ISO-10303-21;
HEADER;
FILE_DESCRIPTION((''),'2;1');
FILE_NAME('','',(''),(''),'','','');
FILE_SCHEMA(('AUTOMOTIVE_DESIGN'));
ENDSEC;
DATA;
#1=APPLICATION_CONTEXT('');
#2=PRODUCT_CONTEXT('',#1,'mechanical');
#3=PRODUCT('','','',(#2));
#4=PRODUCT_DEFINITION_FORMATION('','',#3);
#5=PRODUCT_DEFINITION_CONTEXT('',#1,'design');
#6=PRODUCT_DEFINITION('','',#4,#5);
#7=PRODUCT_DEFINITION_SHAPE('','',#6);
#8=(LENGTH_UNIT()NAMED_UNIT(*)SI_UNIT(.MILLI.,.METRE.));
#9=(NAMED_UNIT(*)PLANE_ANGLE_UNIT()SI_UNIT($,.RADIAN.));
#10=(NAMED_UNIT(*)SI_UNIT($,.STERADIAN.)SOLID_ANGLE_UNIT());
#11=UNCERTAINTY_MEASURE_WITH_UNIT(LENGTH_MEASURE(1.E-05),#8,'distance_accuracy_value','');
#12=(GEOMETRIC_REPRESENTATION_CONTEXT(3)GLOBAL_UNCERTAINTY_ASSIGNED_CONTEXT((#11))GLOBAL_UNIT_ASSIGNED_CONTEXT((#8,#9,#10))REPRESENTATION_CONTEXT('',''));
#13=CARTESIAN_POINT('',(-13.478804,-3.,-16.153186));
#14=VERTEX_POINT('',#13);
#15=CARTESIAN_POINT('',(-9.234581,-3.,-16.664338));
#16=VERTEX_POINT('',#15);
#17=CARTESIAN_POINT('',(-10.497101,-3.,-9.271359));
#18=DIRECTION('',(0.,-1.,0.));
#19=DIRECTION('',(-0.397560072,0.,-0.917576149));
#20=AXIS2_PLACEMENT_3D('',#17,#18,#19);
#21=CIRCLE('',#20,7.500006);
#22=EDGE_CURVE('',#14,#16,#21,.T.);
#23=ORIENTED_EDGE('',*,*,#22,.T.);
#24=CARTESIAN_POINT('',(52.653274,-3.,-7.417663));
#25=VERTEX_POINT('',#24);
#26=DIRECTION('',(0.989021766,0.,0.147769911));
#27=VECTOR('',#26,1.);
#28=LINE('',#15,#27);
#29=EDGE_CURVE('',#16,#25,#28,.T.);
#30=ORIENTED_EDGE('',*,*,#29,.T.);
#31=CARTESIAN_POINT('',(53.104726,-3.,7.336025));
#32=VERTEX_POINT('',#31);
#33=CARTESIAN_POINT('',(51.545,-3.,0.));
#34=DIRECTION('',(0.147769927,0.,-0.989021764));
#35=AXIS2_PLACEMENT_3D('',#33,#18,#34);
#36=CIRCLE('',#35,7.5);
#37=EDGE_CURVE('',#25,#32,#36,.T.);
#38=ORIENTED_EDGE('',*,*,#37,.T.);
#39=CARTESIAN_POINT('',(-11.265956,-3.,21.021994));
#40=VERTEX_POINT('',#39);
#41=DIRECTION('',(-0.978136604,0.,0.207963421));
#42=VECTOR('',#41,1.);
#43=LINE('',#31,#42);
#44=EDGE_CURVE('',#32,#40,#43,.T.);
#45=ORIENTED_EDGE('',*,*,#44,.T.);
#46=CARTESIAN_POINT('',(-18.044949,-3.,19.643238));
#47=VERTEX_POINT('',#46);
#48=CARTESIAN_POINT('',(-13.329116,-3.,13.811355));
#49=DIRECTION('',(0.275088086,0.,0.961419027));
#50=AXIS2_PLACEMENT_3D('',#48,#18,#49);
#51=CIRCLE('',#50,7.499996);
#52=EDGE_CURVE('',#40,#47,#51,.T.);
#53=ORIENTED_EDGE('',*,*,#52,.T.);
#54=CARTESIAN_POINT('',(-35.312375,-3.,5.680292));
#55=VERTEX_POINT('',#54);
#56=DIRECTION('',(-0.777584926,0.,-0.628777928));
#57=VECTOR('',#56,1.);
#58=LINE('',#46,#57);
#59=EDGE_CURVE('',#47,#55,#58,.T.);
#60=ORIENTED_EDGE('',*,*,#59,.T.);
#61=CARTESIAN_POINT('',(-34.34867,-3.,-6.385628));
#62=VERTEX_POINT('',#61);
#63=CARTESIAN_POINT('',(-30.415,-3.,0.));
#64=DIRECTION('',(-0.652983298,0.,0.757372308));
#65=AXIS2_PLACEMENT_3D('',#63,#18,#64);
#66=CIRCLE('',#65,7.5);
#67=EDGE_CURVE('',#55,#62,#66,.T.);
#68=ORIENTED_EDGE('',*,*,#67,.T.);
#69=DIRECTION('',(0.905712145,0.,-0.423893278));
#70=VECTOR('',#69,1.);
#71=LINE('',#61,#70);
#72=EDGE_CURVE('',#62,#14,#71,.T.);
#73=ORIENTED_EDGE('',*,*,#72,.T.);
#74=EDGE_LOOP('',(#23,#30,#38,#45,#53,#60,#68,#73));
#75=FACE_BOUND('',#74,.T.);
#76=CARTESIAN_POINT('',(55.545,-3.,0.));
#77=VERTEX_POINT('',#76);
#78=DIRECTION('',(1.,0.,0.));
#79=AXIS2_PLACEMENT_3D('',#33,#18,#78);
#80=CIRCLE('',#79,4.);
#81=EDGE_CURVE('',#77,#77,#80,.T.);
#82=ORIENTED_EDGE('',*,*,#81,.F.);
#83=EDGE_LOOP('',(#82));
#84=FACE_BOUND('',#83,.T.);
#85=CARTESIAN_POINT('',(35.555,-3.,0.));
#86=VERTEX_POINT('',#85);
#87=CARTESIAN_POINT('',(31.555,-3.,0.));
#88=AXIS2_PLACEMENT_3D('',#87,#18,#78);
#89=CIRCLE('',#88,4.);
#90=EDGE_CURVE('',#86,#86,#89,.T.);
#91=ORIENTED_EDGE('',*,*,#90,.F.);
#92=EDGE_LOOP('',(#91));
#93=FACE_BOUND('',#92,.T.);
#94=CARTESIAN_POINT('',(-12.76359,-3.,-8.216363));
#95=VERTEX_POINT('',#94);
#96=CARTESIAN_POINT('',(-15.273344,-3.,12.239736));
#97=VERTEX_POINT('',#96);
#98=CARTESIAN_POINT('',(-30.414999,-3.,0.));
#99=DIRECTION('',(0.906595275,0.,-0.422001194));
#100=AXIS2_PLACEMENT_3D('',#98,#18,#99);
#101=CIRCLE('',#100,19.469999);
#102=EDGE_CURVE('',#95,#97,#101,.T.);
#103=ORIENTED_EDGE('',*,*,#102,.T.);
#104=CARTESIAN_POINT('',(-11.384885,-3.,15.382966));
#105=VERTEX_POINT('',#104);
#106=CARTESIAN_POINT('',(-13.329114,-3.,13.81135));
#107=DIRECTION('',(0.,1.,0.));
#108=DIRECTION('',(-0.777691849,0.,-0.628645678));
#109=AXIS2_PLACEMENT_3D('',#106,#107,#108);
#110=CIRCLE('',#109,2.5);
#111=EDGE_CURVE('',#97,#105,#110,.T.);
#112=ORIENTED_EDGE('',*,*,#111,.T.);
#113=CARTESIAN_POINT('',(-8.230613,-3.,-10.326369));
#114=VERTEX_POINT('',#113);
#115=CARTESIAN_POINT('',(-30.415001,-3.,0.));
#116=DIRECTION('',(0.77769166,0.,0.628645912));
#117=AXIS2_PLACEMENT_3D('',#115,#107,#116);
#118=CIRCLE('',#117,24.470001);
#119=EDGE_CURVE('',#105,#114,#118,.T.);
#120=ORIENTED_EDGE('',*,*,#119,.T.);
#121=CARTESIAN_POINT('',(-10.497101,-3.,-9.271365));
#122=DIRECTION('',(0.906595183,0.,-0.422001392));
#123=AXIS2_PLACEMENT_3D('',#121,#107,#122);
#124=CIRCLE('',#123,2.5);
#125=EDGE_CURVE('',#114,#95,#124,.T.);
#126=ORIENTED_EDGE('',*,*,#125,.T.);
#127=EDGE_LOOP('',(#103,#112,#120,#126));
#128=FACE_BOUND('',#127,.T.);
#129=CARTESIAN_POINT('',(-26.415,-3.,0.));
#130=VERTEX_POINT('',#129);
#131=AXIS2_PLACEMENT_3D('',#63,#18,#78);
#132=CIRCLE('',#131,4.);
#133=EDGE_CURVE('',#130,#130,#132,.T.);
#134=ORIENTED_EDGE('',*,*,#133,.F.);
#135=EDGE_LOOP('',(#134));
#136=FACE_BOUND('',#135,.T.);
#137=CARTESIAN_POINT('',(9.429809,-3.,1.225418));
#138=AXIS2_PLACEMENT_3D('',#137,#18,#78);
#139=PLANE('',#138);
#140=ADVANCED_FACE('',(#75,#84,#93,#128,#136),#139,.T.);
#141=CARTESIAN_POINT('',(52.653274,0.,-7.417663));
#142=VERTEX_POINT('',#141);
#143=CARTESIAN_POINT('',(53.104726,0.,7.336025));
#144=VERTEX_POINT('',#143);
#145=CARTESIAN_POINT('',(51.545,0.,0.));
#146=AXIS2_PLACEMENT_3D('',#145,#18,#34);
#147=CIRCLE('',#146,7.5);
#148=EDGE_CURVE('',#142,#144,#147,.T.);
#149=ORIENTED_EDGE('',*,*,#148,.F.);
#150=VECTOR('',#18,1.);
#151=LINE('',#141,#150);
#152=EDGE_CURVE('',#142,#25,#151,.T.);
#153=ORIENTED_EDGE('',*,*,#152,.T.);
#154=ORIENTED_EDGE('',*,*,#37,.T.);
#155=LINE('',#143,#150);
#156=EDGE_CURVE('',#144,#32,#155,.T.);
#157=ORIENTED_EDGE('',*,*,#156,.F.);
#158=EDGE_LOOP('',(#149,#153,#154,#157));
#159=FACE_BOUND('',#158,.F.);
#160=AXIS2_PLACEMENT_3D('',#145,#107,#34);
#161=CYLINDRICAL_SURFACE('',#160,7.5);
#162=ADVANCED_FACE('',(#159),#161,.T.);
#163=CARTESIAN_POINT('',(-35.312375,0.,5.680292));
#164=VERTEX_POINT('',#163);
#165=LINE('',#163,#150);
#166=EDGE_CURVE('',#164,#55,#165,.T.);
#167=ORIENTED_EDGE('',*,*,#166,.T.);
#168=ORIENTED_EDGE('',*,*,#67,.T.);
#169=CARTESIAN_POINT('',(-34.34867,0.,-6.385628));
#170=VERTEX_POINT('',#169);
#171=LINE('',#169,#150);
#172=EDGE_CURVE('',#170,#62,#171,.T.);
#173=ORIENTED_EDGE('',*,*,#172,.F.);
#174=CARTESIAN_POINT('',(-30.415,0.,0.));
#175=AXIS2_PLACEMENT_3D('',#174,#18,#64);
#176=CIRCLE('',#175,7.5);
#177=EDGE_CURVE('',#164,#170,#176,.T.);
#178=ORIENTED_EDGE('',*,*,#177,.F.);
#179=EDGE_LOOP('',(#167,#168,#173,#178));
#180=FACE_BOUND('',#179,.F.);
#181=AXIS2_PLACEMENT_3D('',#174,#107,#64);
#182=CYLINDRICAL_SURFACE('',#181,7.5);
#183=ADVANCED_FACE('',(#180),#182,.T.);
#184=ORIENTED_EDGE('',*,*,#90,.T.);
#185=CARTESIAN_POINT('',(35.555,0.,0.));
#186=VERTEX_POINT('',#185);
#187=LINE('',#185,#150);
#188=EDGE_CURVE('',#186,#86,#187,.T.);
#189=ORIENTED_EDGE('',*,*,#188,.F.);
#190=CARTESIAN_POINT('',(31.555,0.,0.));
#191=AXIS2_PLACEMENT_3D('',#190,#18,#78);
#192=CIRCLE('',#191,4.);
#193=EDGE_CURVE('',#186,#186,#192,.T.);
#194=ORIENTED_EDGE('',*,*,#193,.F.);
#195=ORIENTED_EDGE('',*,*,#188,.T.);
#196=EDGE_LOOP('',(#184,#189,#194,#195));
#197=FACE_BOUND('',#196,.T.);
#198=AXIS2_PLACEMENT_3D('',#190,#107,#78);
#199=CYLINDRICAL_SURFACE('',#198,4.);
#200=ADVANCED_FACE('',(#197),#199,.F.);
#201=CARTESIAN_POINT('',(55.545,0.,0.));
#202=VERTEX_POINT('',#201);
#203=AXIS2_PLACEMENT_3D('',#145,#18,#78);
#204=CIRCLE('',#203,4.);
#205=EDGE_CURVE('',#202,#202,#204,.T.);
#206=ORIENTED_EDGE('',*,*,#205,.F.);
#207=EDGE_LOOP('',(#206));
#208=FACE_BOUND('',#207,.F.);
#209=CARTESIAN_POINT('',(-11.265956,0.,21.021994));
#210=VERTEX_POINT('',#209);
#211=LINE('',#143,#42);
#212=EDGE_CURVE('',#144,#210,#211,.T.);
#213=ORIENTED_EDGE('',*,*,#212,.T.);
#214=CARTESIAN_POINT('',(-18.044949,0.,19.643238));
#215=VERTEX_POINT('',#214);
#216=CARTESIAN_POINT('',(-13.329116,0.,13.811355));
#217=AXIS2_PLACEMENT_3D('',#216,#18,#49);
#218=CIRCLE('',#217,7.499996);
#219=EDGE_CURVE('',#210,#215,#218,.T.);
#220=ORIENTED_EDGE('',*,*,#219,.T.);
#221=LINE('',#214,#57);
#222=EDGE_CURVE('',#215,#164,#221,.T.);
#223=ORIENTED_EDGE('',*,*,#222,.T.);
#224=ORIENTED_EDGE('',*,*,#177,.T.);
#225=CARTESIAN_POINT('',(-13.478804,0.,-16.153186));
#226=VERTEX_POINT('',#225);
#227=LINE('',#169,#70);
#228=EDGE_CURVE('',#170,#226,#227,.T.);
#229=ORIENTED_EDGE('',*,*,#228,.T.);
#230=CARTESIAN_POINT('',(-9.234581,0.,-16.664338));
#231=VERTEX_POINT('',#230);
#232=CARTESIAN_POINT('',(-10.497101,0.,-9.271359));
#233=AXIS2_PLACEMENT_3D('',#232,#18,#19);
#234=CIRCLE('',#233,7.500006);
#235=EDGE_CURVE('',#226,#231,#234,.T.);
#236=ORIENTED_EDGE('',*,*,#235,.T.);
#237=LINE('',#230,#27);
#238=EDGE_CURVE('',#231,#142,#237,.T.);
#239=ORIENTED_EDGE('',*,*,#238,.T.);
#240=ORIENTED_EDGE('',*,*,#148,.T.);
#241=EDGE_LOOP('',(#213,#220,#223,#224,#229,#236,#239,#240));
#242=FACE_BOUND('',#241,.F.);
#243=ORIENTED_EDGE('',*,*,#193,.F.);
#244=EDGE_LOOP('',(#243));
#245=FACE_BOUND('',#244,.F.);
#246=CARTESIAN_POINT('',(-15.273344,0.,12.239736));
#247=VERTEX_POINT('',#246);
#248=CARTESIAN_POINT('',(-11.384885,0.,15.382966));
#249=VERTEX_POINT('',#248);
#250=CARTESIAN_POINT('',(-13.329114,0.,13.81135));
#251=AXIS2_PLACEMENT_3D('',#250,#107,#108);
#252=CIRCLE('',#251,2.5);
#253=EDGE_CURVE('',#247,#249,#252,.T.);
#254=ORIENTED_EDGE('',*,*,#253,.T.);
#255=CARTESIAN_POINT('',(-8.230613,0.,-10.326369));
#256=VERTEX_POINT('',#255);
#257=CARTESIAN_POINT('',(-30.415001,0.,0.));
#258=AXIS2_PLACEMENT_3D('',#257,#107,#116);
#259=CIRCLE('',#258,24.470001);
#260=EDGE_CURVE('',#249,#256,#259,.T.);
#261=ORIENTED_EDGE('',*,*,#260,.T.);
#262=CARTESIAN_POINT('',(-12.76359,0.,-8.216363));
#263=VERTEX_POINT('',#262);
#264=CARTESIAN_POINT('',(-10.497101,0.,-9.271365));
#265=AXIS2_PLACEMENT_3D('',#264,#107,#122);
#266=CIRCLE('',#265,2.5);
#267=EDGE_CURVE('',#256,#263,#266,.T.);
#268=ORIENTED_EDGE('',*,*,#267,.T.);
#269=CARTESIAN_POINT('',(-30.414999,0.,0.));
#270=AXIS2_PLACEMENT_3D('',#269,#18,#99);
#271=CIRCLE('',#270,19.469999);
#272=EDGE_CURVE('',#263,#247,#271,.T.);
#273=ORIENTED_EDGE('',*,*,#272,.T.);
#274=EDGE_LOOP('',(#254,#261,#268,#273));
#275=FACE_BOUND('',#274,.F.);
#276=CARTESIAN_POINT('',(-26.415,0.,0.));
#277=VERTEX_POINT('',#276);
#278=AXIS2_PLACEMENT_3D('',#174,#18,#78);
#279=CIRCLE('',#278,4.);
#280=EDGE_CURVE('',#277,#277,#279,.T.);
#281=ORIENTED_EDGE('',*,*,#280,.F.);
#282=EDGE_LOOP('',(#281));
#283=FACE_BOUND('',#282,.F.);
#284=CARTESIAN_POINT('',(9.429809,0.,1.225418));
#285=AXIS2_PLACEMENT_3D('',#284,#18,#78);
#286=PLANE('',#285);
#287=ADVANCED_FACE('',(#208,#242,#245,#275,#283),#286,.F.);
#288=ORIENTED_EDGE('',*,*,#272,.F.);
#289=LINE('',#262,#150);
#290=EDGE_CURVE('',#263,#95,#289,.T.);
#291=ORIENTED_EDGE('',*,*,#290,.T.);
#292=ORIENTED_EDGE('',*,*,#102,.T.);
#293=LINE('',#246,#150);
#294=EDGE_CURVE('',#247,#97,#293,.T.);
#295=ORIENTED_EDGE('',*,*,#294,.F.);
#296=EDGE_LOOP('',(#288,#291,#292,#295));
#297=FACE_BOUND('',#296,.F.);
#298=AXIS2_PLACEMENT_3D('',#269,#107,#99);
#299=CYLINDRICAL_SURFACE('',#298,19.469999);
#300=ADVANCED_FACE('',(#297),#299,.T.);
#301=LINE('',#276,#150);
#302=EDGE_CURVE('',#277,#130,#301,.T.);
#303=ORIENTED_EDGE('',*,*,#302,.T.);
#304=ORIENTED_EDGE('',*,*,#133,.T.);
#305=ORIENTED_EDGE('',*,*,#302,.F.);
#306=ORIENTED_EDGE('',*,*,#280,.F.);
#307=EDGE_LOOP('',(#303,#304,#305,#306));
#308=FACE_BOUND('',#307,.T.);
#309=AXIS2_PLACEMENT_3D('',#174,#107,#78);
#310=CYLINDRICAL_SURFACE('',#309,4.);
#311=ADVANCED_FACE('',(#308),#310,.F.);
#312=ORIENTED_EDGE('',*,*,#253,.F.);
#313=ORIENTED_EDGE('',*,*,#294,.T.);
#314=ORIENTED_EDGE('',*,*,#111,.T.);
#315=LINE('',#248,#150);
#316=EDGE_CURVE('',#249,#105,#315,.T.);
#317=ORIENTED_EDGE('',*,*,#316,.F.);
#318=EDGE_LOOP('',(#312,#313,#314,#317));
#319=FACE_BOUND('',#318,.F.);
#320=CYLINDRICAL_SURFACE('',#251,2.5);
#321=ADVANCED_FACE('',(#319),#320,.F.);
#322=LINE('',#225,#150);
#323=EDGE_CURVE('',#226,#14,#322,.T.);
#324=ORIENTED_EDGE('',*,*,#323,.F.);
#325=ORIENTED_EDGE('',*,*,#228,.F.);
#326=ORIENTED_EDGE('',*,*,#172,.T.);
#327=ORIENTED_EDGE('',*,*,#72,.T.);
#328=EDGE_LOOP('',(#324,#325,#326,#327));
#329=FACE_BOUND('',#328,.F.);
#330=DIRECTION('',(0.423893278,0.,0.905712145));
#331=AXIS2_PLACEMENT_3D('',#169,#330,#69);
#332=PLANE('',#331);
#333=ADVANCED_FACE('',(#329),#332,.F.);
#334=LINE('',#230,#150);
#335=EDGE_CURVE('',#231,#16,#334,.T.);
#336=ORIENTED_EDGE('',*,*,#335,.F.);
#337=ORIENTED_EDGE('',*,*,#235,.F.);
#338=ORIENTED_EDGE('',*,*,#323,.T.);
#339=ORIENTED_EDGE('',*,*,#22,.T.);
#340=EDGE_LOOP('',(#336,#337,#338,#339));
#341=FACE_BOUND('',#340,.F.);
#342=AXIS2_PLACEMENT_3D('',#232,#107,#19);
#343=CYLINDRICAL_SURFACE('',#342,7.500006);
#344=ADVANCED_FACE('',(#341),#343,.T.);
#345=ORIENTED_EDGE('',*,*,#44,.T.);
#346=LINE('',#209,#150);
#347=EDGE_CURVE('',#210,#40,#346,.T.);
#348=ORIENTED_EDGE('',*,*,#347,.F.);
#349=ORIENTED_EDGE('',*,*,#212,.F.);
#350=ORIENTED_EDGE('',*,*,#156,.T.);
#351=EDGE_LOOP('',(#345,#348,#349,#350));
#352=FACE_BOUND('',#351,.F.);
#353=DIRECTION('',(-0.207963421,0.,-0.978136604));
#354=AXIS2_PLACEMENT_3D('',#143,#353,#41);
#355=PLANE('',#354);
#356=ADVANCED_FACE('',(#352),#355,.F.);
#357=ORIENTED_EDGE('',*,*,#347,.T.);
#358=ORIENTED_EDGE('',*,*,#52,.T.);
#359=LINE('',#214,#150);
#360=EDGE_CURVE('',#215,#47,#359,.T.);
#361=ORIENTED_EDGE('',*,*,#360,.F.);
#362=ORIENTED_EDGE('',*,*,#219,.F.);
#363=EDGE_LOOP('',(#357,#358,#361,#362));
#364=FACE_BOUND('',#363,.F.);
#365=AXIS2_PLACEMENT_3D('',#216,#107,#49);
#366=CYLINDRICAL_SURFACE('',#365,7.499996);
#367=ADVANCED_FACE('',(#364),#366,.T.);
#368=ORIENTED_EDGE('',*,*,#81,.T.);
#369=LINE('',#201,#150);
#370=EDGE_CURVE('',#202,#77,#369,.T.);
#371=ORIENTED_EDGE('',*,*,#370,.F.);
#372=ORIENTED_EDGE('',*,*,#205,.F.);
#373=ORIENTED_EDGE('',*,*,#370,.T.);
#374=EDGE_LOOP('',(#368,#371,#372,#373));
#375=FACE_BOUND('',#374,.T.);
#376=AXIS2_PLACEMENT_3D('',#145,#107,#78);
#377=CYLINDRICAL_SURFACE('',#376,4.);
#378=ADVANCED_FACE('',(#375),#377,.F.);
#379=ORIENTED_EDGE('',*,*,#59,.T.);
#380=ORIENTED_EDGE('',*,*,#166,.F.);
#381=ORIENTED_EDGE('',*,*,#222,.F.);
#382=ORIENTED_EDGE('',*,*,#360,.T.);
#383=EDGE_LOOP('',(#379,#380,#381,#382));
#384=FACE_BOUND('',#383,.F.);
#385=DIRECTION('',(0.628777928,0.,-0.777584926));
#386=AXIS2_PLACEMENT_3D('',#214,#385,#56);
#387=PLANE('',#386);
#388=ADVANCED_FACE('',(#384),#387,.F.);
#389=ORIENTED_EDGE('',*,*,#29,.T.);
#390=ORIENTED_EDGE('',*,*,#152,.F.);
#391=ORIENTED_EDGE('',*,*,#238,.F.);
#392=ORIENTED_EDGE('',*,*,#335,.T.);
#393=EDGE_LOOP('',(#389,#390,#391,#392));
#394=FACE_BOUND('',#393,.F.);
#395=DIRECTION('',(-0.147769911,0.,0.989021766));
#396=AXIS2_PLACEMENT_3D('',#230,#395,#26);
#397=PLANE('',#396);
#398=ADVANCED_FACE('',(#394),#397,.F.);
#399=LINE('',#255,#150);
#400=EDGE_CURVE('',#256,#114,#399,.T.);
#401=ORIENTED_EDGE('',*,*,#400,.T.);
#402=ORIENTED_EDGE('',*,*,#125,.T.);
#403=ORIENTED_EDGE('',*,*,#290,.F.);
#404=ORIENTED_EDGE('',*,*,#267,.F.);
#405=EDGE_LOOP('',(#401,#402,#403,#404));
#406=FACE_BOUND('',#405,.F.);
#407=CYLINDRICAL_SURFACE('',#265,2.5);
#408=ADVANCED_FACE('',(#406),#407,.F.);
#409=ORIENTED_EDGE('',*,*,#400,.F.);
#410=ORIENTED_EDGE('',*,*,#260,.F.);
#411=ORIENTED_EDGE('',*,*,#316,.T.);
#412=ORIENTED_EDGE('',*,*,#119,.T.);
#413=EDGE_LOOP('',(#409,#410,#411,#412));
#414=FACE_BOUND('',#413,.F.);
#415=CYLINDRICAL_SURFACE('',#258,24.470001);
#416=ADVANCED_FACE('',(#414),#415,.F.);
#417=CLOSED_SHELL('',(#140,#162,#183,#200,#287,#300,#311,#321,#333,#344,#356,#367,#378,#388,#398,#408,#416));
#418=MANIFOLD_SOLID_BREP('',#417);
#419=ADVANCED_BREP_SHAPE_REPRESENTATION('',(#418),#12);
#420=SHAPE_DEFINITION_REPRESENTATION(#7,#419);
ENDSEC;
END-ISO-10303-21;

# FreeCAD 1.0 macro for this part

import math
import FreeCAD as App
import Part
import Sketcher
Q = App.Units.Quantity

doc = App.newDocument("Part")
body = doc.addObject("PartDesign::Body", "Body")

# Sketch on XZ plane
sketch1 = body.newObject("Sketcher::SketchObject", "Sketch")
sketch1.AttachmentSupport = (doc.getObject("XZ_Plane"), [""])
sketch1.MapMode = "FlatFace"
sketch1.addGeometry([
    Part.LineSegment(App.Vector(53.104726, 7.336025, 0), App.Vector(-11.265956, 21.021994, 0)),  # 0
    Part.ArcOfCircle(Part.Circle(App.Vector(-13.329116, 13.811355, 0), App.Vector(0, 0, 1), 7.499996), math.radians(74.032736), math.radians(128.960029)),  # 1
    Part.LineSegment(App.Vector(-18.044949, 19.643238, 0), App.Vector(-35.312375, 5.680292, 0)),  # 2
    Part.ArcOfCircle(Part.Circle(App.Vector(-30.415, 0, 0), App.Vector(0, 0, 1), 7.5), math.radians(130.766909), math.radians(238.366131)),  # 3
    Part.LineSegment(App.Vector(-34.34867, -6.385628, 0), App.Vector(-13.478804, -16.153186, 0)),  # 4
    Part.ArcOfCircle(Part.Circle(App.Vector(-10.497101, -9.271359, 0), App.Vector(0, 0, 1), 7.500006), math.radians(-113.425735), math.radians(-80.308922)),  # 5
    Part.LineSegment(App.Vector(-9.234581, -16.664338, 0), App.Vector(52.653274, -7.417663, 0)),  # 6
    Part.ArcOfCircle(Part.Circle(App.Vector(51.545, 0, 0), App.Vector(0, 0, 1), 7.5), math.radians(-81.502287), math.radians(77.996964)),  # 7
    Part.Circle(App.Vector(-30.415, 0, 0), App.Vector(0, 0, 1), 4),  # 8
    Part.Circle(App.Vector(31.555, 0, 0), App.Vector(0, 0, 1), 4),  # 9
    Part.Circle(App.Vector(51.545, 0, 0), App.Vector(0, 0, 1), 4),  # 10
    Part.ArcOfCircle(Part.Circle(App.Vector(-30.414999, 0, 0), App.Vector(0, 0, 1), 19.469999), math.radians(-24.960996), math.radians(38.950294)),  # 11
    Part.ArcOfCircle(Part.Circle(App.Vector(-13.329114, 13.81135, 0), App.Vector(0, 0, 1), 2.5), math.radians(38.950306), math.radians(218.950274)),  # 12
    Part.ArcOfCircle(Part.Circle(App.Vector(-30.415001, 0, 0), App.Vector(0, 0, 1), 24.470001), math.radians(-24.960994), math.radians(38.950291)),  # 13
    Part.ArcOfCircle(Part.Circle(App.Vector(-10.497101, -9.271365, 0), App.Vector(0, 0, 1), 2.5), math.radians(155.039022), math.radians(335.038992)),  # 14
], False)
sketch1.addConstraint([
    Sketcher.Constraint("Coincident", 0, 2, 1, 1),
    Sketcher.Constraint("Coincident", 1, 2, 2, 1),
    Sketcher.Constraint("Coincident", 2, 2, 3, 1),
    Sketcher.Constraint("Coincident", 3, 2, 4, 1),
    Sketcher.Constraint("Coincident", 4, 2, 5, 1),
    Sketcher.Constraint("Coincident", 5, 2, 6, 1),
    Sketcher.Constraint("Coincident", 6, 2, 7, 1),
    Sketcher.Constraint("Coincident", 7, 2, 0, 1),
    Sketcher.Constraint("Coincident", 11, 2, 12, 2),
    Sketcher.Constraint("Coincident", 12, 1, 13, 2),
    Sketcher.Constraint("Coincident", 13, 1, 14, 2),
    Sketcher.Constraint("Coincident", 14, 1, 11, 1),
    Sketcher.Constraint("Coincident", 8, 3, 3, 3),
    Sketcher.Constraint("Coincident", 10, 3, 7, 3),
    Sketcher.Constraint("Coincident", 11, 3, 3, 3),
    Sketcher.Constraint("Coincident", 12, 3, 1, 3),
    Sketcher.Constraint("Coincident", 13, 3, 3, 3),
    Sketcher.Constraint("Coincident", 14, 3, 5, 3),
    Sketcher.Constraint("PointOnObject", 3, 3, -1),
    Sketcher.Constraint("PointOnObject", 7, 3, -1),
    Sketcher.Constraint("PointOnObject", 9, 3, -1),
    Sketcher.Constraint("Diameter", 8, Q("8 mm")),
    Sketcher.Constraint("Diameter", 9, Q("8 mm")),
    Sketcher.Constraint("Diameter", 10, Q("8 mm")),
    Sketcher.Constraint("Radius", 3, Q("7.5 mm")),
    Sketcher.Constraint("Radius", 7, Q("7.5 mm")),
    Sketcher.Constraint("Radius", 12, Q("2.5 mm")),
    Sketcher.Constraint("Radius", 11, Q("19.469999 mm")),
    Sketcher.Constraint("DistanceX", 3, 3, 7, 3, Q("81.96 mm")),
    Sketcher.Constraint("DistanceX", 9, 3, 7, 3, Q("19.99 mm")),
    Sketcher.Constraint("DistanceX", 3, 3, -1, 1, Q("30.415 mm")),
    Sketcher.Constraint("Radius", 1, Q("7.499996 mm")),
    Sketcher.Constraint("Radius", 5, Q("7.500006 mm")),
    Sketcher.Constraint("Distance", 0, Q("65.809501 mm")),
    Sketcher.Constraint("DistanceX", 5, 3, -1, 1, Q("10.497101 mm")),
    Sketcher.Constraint("DistanceY", -1, 1, 12, 3, Q("13.81135 mm")),
    Sketcher.Constraint("DistanceX", 1, 2, -1, 1, Q("18.044949 mm")),
    Sketcher.Constraint("DistanceY", -1, 1, 2, 2, Q("5.680292 mm")),
    Sketcher.Constraint("DistanceX", 3, 2, -1, 1, Q("34.34867 mm")),
    Sketcher.Constraint("DistanceX", 5, 2, -1, 1, Q("9.234581 mm")),
    Sketcher.Constraint("DistanceY", 13, 1, -1, 1, Q("10.326369 mm")),
    Sketcher.Constraint("DistanceX", 14, 1, -1, 1, Q("12.76359 mm")),
    Sketcher.Constraint("DistanceX", 1, 3, 0, 2, Q("2.06316 mm")),
    Sketcher.Constraint("DistanceY", 4, 2, 14, 3, Q("6.881821 mm")),
    Sketcher.Constraint("DistanceX", 6, 2, 7, 2, Q("0.451452 mm")),
    Sketcher.Constraint("DistanceX", 11, 2, 12, 3, Q("1.94423 mm")),
    Sketcher.Constraint("DistanceX", 1, 3, 12, 1, Q("1.944231 mm")),
])
pad1 = body.newObject("PartDesign::Pad", "Pad")
pad1.Profile = sketch1
pad1.Length = 3

doc.recompute()
